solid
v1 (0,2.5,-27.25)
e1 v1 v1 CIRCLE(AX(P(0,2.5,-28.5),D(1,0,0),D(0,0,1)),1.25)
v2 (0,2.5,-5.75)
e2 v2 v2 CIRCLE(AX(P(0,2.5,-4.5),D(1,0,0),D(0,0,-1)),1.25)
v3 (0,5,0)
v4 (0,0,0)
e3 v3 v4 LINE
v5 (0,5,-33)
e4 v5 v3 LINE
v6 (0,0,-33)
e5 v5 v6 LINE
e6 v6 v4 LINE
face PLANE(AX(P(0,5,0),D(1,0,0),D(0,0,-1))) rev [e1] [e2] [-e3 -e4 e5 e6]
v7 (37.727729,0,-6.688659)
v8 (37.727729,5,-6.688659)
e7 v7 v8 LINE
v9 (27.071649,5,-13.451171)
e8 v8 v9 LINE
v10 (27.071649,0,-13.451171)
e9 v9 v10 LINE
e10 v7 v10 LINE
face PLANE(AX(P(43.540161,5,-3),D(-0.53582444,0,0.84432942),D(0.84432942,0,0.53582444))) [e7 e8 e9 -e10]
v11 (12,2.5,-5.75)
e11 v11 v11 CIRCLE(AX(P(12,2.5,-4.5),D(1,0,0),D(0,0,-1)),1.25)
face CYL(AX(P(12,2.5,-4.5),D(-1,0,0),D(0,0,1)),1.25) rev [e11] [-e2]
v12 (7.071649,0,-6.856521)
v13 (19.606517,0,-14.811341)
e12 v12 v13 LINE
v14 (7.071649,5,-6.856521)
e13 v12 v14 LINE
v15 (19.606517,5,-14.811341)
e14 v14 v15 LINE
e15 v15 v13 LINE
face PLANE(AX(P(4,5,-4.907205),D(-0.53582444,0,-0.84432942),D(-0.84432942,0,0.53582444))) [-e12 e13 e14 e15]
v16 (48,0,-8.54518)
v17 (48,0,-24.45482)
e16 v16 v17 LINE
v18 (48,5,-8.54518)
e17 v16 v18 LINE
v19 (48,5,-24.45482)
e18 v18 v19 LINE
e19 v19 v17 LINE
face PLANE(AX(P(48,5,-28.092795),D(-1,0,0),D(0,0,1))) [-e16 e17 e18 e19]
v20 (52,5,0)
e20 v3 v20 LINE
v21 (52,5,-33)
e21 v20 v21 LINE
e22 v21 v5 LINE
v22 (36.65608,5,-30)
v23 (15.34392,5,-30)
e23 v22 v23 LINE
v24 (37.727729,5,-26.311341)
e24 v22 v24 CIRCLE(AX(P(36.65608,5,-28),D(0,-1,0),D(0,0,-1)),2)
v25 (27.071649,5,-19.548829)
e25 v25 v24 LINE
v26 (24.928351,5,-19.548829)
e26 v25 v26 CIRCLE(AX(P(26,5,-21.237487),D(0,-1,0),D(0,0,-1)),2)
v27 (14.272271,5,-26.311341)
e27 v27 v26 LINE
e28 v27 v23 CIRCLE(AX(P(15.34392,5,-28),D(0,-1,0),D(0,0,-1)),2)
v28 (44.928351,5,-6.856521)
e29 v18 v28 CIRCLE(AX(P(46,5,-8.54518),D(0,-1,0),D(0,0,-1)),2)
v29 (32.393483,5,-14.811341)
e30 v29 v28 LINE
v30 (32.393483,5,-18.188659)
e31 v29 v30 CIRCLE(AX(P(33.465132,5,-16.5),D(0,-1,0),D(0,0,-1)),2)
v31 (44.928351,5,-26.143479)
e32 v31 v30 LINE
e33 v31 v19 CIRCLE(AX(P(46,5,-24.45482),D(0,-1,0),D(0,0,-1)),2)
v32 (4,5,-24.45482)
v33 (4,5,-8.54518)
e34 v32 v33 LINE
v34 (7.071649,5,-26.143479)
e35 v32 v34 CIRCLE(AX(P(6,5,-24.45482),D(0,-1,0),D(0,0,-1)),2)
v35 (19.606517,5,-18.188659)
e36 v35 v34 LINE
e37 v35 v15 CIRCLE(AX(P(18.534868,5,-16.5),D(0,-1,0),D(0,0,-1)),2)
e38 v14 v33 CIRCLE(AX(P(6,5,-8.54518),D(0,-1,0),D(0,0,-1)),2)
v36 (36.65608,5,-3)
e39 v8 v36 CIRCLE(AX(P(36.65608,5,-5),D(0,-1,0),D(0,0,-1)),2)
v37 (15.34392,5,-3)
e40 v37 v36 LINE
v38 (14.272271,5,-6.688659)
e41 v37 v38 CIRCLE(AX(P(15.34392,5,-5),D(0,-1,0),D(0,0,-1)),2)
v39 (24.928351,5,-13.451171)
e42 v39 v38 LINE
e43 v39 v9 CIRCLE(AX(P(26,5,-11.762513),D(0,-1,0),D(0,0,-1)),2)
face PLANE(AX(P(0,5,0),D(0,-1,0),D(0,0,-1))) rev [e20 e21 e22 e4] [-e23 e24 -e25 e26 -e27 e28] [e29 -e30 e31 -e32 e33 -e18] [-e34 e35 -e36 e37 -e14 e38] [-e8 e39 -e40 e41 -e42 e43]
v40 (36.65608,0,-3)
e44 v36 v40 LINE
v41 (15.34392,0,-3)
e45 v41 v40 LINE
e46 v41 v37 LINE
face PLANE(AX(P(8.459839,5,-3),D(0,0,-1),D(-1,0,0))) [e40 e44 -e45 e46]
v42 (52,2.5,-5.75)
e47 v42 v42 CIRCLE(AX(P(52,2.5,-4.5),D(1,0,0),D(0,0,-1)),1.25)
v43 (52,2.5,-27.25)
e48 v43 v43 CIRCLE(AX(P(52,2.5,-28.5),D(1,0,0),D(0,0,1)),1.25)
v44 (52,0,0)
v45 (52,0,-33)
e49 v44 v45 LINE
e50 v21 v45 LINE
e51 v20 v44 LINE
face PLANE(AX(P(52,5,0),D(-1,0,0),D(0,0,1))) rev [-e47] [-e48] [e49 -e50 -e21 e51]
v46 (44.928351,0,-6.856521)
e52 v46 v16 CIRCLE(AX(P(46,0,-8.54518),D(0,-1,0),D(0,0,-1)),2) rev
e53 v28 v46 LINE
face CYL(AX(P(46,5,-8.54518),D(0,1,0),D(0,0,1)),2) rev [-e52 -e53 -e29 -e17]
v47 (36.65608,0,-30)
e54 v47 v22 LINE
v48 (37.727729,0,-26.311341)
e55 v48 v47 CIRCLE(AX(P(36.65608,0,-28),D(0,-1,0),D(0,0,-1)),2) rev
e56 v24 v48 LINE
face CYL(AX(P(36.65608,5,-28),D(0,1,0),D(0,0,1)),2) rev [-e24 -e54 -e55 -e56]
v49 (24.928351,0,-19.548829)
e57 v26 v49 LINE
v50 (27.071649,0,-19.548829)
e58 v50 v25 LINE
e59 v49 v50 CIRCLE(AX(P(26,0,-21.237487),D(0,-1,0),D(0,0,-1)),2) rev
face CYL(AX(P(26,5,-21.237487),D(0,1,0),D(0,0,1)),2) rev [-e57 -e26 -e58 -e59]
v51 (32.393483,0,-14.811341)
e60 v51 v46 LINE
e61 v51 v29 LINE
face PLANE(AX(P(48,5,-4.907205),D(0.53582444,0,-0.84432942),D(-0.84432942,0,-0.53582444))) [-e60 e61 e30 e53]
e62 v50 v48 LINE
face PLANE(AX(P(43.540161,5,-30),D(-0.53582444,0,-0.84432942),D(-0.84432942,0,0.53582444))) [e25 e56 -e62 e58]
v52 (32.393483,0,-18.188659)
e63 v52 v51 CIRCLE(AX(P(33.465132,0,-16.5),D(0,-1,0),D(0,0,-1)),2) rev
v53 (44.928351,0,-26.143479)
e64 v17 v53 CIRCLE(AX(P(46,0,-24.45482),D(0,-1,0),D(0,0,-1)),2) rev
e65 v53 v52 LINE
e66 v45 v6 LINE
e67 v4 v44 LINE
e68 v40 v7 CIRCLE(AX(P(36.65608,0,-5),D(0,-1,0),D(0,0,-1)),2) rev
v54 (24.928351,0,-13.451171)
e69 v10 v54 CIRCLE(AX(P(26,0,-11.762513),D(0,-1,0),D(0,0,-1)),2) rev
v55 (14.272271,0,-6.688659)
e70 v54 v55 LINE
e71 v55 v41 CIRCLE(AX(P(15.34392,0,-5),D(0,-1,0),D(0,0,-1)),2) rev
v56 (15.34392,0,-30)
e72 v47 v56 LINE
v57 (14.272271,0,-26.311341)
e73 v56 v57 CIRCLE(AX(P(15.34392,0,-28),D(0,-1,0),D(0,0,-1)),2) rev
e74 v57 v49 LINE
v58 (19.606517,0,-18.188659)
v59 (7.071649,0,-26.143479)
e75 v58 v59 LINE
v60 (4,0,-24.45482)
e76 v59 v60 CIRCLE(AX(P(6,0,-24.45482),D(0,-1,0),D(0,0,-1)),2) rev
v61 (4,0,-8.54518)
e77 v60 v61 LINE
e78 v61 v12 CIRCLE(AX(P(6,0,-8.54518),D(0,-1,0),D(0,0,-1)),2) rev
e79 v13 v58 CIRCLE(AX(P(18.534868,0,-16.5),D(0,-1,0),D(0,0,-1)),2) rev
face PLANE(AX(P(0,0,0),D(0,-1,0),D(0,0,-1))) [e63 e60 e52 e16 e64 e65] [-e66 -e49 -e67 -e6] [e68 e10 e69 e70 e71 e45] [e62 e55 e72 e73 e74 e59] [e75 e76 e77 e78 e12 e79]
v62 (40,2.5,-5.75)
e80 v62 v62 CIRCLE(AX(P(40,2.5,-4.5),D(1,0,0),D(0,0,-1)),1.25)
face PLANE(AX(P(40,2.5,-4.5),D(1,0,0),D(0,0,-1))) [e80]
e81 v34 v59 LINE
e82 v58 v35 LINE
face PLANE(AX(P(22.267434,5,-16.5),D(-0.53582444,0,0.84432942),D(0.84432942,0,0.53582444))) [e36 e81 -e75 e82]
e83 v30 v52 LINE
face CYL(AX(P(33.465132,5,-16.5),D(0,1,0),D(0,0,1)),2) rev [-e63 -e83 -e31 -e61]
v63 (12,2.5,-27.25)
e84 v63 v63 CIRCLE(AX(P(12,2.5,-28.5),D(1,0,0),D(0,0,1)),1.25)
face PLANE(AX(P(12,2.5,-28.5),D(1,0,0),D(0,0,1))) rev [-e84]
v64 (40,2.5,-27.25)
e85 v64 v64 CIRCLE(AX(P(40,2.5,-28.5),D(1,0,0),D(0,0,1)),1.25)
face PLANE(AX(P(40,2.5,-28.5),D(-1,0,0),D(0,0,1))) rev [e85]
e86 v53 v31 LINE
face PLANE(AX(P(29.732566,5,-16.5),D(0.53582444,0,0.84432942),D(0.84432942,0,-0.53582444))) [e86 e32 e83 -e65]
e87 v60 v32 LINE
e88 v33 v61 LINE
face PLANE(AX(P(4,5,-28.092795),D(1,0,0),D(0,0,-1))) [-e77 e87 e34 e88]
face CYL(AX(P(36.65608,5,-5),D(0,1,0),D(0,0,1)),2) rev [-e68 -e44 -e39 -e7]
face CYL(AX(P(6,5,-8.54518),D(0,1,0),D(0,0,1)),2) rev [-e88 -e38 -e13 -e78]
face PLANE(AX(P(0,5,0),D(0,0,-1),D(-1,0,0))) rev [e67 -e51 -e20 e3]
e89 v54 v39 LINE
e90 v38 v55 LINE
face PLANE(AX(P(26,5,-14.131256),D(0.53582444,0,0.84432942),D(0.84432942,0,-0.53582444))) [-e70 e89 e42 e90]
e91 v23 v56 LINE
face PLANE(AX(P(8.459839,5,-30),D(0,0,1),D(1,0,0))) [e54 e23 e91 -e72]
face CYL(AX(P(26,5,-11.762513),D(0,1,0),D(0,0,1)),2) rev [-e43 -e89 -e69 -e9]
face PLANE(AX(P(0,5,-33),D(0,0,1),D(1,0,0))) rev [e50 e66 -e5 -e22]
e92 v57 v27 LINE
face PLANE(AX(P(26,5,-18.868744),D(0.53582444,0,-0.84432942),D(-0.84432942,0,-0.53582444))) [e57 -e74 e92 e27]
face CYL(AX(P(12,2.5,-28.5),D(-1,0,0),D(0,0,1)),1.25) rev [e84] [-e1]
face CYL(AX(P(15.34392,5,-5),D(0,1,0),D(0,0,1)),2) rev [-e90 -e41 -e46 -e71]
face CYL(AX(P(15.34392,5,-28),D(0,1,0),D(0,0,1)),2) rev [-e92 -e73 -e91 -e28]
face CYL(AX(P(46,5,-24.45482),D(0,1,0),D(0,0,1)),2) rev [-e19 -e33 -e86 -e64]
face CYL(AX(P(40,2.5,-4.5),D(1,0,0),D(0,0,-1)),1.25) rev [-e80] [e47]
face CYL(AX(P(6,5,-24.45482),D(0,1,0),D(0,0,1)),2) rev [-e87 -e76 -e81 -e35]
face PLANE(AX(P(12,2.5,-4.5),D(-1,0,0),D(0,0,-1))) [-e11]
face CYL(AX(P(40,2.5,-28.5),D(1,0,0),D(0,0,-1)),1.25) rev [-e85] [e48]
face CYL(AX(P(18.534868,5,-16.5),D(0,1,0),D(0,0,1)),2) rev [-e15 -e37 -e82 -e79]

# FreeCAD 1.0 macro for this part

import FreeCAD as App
import Part
import Sketcher


def edges_at(feature, points):
    """Names of the edges that pass closest to the given points."""
    edges = feature.Shape.Edges
    near = lambda p: min(range(len(edges)), key=lambda i: edges[i].distToShape(Part.Vertex(*p))[0])
    return sorted({f"Edge{near(p) + 1}" for p in points})

doc = App.newDocument("Part")
body = doc.addObject("PartDesign::Body", "Body")

# Sketch on XZ plane
sketch1 = doc.addObject("Sketcher::SketchObject", "Sketch")
body.addObject(sketch1)
sketch1.AttachmentSupport = (doc.XZ_Plane, [""])
sketch1.MapMode = "FlatFace"
sketch1.addGeometry([
    Part.LineSegment(App.Vector(0, -33, 0), App.Vector(0, 0, 0)),  # 0
    Part.LineSegment(App.Vector(0, 0, 0), App.Vector(52, 0, 0)),  # 1
    Part.LineSegment(App.Vector(52, 0, 0), App.Vector(52, -33, 0)),  # 2
    Part.LineSegment(App.Vector(52, -33, 0), App.Vector(0, -33, 0)),  # 3
    Part.LineSegment(App.Vector(8, -3, 0), App.Vector(26, -14, 0)),  # 4
    Part.LineSegment(App.Vector(26, -14, 0), App.Vector(44, -3, 0)),  # 5
    Part.LineSegment(App.Vector(44, -3, 0), App.Vector(8, -3, 0)),  # 6
    Part.LineSegment(App.Vector(4, -5, 0), App.Vector(4, -28, 0)),  # 7
    Part.LineSegment(App.Vector(4, -28, 0), App.Vector(22, -16, 0)),  # 8
    Part.LineSegment(App.Vector(22, -16, 0), App.Vector(4, -5, 0)),  # 9
    Part.LineSegment(App.Vector(48, -28, 0), App.Vector(48, -5, 0)),  # 10
    Part.LineSegment(App.Vector(48, -5, 0), App.Vector(30, -16, 0)),  # 11
    Part.LineSegment(App.Vector(30, -16, 0), App.Vector(48, -28, 0)),  # 12
    Part.LineSegment(App.Vector(26, -19, 0), App.Vector(8, -30, 0)),  # 13
    Part.LineSegment(App.Vector(8, -30, 0), App.Vector(44, -30, 0)),  # 14
    Part.LineSegment(App.Vector(44, -30, 0), App.Vector(26, -19, 0)),  # 15
], False)
sketch1.addConstraint([
    Sketcher.Constraint("Coincident", 0, 2, 1, 1),
    Sketcher.Constraint("Coincident", 1, 2, 2, 1),
    Sketcher.Constraint("Coincident", 2, 2, 3, 1),
    Sketcher.Constraint("Coincident", 3, 2, 0, 1),
    Sketcher.Constraint("Coincident", 4, 2, 5, 1),
    Sketcher.Constraint("Coincident", 5, 2, 6, 1),
    Sketcher.Constraint("Coincident", 6, 2, 4, 1),
    Sketcher.Constraint("Coincident", 7, 2, 8, 1),
    Sketcher.Constraint("Coincident", 8, 2, 9, 1),
    Sketcher.Constraint("Coincident", 9, 2, 7, 1),
    Sketcher.Constraint("Coincident", 10, 2, 11, 1),
    Sketcher.Constraint("Coincident", 11, 2, 12, 1),
    Sketcher.Constraint("Coincident", 12, 2, 10, 1),
    Sketcher.Constraint("Coincident", 13, 2, 14, 1),
    Sketcher.Constraint("Coincident", 14, 2, 15, 1),
    Sketcher.Constraint("Coincident", 15, 2, 13, 1),
    Sketcher.Constraint("Vertical", 0),
    Sketcher.Constraint("Horizontal", 1),
    Sketcher.Constraint("Vertical", 2),
    Sketcher.Constraint("Horizontal", 3),
    Sketcher.Constraint("Horizontal", 6),
    Sketcher.Constraint("Vertical", 7),
    Sketcher.Constraint("Vertical", 10),
    Sketcher.Constraint("Horizontal", 14),
    Sketcher.Constraint("Coincident", 0, 2, -1, 1),
    Sketcher.Constraint("Parallel", 5, 8),
    Sketcher.Constraint("Parallel", 4, 9),
    Sketcher.Constraint("Parallel", 8, 11),
    Sketcher.Constraint("Parallel", 9, 12),
    Sketcher.Constraint("Parallel", 11, 13),
    Sketcher.Constraint("Parallel", 12, 15),
    Sketcher.Constraint("Horizontal", 9, 2, 10, 2),
    Sketcher.Constraint("Horizontal", 8, 2, 11, 2),
    Sketcher.Constraint("Horizontal", 7, 2, 12, 2),
    Sketcher.Constraint("Vertical", 6, 2, 13, 2),
    Sketcher.Constraint("Vertical", 5, 2, 14, 2),
    Sketcher.Constraint("DistanceX", 1, 1, 1, 2, 52.0),
    Sketcher.Constraint("DistanceY", 0, 1, 0, 2, 33.0),
    Sketcher.Constraint("DistanceX", -1, 1, 4, 2, 26.0),
    Sketcher.Constraint("DistanceY", 5, 2, -1, 1, 3.0),
    Sketcher.Constraint("DistanceX", -1, 1, 7, 2, 4.0),
    Sketcher.Constraint("DistanceX", -1, 1, 10, 2, 48.0),
    Sketcher.Constraint("DistanceY", 13, 2, -1, 1, 30.0),
    Sketcher.Constraint("DistanceY", 8, 2, -1, 1, 16.5),
    Sketcher.Constraint("DistanceY", 7, 2, 7, 1, 23.18559),
    Sketcher.Constraint("DistanceX", 6, 2, 6, 1, 35.080323),
    Sketcher.Constraint("DistanceY", 7, 2, 4, 2, 13.961538),
])
pad1 = doc.addObject("PartDesign::Pad", "Pad")
body.addObject(pad1)
pad1.Profile = sketch1
pad1.Length = 5
pad1.Reversed = True
doc.recompute()

fillet = doc.addObject("PartDesign::Fillet", "Fillet")
body.addObject(fillet)
fillet.Base = (pad1, edges_at(pad1, [
    (22.267, 2.5, -16.5),
    (4, 2.5, -28.093),
    (4, 2.5, -4.907),
    (43.54, 2.5, -3),
    (26, 2.5, -14.131),
    (8.46, 2.5, -3),
    (48, 2.5, -4.907),
    (48, 2.5, -28.093),
    (29.733, 2.5, -16.5),
    (8.46, 2.5, -30),
    (26, 2.5, -18.869),
    (43.54, 2.5, -30),
]))
fillet.Radius = 2

# Sketch on YZ plane
sketch2 = doc.addObject("Sketcher::SketchObject", "Sketch001")
body.addObject(sketch2)
sketch2.AttachmentSupport = (doc.YZ_Plane, [""])
sketch2.MapMode = "FlatFace"
sketch2.AttachmentOffset = App.Placement(App.Vector(0, 0, 52), App.Rotation())
sketch2.addGeometry([
    Part.Circle(App.Vector(2.5, -4.5, 0), App.Vector(0, 0, 1), 1.2),
    Part.Circle(App.Vector(2.5, -28.5, 0), App.Vector(0, 0, 1), 1.2),
], False)
sketch2.addConstraint([
    Sketcher.Constraint("Equal", 0, 1),
    Sketcher.Constraint("Vertical", 0, 3, 1, 3),
    Sketcher.Constraint("Diameter", 0, 2.5),
    Sketcher.Constraint("DistanceY", 1, 3, 0, 3, 24.0),
    Sketcher.Constraint("DistanceX", -1, 1, 0, 3, 2.5),
    Sketcher.Constraint("DistanceY", 0, 3, -1, 1, 4.5),
])
pocket1 = doc.addObject("PartDesign::Pocket", "Pocket")
body.addObject(pocket1)
pocket1.Profile = sketch2
pocket1.Length = 12
doc.recompute()

datumplane = doc.addObject("PartDesign::Plane", "DatumPlane")
body.addObject(datumplane)
datumplane.AttachmentSupport = (doc.YZ_Plane, [""])
datumplane.MapMode = "FlatFace"
datumplane.AttachmentOffset = App.Placement(App.Vector(0, 0, 26), App.Rotation())
mirrored = doc.addObject("PartDesign::Mirrored", "Mirrored")
body.addObject(mirrored)
mirrored.Originals = [pocket1]
mirrored.MirrorPlane = (datumplane, [""])
body.Tip = mirrored

doc.recompute()
